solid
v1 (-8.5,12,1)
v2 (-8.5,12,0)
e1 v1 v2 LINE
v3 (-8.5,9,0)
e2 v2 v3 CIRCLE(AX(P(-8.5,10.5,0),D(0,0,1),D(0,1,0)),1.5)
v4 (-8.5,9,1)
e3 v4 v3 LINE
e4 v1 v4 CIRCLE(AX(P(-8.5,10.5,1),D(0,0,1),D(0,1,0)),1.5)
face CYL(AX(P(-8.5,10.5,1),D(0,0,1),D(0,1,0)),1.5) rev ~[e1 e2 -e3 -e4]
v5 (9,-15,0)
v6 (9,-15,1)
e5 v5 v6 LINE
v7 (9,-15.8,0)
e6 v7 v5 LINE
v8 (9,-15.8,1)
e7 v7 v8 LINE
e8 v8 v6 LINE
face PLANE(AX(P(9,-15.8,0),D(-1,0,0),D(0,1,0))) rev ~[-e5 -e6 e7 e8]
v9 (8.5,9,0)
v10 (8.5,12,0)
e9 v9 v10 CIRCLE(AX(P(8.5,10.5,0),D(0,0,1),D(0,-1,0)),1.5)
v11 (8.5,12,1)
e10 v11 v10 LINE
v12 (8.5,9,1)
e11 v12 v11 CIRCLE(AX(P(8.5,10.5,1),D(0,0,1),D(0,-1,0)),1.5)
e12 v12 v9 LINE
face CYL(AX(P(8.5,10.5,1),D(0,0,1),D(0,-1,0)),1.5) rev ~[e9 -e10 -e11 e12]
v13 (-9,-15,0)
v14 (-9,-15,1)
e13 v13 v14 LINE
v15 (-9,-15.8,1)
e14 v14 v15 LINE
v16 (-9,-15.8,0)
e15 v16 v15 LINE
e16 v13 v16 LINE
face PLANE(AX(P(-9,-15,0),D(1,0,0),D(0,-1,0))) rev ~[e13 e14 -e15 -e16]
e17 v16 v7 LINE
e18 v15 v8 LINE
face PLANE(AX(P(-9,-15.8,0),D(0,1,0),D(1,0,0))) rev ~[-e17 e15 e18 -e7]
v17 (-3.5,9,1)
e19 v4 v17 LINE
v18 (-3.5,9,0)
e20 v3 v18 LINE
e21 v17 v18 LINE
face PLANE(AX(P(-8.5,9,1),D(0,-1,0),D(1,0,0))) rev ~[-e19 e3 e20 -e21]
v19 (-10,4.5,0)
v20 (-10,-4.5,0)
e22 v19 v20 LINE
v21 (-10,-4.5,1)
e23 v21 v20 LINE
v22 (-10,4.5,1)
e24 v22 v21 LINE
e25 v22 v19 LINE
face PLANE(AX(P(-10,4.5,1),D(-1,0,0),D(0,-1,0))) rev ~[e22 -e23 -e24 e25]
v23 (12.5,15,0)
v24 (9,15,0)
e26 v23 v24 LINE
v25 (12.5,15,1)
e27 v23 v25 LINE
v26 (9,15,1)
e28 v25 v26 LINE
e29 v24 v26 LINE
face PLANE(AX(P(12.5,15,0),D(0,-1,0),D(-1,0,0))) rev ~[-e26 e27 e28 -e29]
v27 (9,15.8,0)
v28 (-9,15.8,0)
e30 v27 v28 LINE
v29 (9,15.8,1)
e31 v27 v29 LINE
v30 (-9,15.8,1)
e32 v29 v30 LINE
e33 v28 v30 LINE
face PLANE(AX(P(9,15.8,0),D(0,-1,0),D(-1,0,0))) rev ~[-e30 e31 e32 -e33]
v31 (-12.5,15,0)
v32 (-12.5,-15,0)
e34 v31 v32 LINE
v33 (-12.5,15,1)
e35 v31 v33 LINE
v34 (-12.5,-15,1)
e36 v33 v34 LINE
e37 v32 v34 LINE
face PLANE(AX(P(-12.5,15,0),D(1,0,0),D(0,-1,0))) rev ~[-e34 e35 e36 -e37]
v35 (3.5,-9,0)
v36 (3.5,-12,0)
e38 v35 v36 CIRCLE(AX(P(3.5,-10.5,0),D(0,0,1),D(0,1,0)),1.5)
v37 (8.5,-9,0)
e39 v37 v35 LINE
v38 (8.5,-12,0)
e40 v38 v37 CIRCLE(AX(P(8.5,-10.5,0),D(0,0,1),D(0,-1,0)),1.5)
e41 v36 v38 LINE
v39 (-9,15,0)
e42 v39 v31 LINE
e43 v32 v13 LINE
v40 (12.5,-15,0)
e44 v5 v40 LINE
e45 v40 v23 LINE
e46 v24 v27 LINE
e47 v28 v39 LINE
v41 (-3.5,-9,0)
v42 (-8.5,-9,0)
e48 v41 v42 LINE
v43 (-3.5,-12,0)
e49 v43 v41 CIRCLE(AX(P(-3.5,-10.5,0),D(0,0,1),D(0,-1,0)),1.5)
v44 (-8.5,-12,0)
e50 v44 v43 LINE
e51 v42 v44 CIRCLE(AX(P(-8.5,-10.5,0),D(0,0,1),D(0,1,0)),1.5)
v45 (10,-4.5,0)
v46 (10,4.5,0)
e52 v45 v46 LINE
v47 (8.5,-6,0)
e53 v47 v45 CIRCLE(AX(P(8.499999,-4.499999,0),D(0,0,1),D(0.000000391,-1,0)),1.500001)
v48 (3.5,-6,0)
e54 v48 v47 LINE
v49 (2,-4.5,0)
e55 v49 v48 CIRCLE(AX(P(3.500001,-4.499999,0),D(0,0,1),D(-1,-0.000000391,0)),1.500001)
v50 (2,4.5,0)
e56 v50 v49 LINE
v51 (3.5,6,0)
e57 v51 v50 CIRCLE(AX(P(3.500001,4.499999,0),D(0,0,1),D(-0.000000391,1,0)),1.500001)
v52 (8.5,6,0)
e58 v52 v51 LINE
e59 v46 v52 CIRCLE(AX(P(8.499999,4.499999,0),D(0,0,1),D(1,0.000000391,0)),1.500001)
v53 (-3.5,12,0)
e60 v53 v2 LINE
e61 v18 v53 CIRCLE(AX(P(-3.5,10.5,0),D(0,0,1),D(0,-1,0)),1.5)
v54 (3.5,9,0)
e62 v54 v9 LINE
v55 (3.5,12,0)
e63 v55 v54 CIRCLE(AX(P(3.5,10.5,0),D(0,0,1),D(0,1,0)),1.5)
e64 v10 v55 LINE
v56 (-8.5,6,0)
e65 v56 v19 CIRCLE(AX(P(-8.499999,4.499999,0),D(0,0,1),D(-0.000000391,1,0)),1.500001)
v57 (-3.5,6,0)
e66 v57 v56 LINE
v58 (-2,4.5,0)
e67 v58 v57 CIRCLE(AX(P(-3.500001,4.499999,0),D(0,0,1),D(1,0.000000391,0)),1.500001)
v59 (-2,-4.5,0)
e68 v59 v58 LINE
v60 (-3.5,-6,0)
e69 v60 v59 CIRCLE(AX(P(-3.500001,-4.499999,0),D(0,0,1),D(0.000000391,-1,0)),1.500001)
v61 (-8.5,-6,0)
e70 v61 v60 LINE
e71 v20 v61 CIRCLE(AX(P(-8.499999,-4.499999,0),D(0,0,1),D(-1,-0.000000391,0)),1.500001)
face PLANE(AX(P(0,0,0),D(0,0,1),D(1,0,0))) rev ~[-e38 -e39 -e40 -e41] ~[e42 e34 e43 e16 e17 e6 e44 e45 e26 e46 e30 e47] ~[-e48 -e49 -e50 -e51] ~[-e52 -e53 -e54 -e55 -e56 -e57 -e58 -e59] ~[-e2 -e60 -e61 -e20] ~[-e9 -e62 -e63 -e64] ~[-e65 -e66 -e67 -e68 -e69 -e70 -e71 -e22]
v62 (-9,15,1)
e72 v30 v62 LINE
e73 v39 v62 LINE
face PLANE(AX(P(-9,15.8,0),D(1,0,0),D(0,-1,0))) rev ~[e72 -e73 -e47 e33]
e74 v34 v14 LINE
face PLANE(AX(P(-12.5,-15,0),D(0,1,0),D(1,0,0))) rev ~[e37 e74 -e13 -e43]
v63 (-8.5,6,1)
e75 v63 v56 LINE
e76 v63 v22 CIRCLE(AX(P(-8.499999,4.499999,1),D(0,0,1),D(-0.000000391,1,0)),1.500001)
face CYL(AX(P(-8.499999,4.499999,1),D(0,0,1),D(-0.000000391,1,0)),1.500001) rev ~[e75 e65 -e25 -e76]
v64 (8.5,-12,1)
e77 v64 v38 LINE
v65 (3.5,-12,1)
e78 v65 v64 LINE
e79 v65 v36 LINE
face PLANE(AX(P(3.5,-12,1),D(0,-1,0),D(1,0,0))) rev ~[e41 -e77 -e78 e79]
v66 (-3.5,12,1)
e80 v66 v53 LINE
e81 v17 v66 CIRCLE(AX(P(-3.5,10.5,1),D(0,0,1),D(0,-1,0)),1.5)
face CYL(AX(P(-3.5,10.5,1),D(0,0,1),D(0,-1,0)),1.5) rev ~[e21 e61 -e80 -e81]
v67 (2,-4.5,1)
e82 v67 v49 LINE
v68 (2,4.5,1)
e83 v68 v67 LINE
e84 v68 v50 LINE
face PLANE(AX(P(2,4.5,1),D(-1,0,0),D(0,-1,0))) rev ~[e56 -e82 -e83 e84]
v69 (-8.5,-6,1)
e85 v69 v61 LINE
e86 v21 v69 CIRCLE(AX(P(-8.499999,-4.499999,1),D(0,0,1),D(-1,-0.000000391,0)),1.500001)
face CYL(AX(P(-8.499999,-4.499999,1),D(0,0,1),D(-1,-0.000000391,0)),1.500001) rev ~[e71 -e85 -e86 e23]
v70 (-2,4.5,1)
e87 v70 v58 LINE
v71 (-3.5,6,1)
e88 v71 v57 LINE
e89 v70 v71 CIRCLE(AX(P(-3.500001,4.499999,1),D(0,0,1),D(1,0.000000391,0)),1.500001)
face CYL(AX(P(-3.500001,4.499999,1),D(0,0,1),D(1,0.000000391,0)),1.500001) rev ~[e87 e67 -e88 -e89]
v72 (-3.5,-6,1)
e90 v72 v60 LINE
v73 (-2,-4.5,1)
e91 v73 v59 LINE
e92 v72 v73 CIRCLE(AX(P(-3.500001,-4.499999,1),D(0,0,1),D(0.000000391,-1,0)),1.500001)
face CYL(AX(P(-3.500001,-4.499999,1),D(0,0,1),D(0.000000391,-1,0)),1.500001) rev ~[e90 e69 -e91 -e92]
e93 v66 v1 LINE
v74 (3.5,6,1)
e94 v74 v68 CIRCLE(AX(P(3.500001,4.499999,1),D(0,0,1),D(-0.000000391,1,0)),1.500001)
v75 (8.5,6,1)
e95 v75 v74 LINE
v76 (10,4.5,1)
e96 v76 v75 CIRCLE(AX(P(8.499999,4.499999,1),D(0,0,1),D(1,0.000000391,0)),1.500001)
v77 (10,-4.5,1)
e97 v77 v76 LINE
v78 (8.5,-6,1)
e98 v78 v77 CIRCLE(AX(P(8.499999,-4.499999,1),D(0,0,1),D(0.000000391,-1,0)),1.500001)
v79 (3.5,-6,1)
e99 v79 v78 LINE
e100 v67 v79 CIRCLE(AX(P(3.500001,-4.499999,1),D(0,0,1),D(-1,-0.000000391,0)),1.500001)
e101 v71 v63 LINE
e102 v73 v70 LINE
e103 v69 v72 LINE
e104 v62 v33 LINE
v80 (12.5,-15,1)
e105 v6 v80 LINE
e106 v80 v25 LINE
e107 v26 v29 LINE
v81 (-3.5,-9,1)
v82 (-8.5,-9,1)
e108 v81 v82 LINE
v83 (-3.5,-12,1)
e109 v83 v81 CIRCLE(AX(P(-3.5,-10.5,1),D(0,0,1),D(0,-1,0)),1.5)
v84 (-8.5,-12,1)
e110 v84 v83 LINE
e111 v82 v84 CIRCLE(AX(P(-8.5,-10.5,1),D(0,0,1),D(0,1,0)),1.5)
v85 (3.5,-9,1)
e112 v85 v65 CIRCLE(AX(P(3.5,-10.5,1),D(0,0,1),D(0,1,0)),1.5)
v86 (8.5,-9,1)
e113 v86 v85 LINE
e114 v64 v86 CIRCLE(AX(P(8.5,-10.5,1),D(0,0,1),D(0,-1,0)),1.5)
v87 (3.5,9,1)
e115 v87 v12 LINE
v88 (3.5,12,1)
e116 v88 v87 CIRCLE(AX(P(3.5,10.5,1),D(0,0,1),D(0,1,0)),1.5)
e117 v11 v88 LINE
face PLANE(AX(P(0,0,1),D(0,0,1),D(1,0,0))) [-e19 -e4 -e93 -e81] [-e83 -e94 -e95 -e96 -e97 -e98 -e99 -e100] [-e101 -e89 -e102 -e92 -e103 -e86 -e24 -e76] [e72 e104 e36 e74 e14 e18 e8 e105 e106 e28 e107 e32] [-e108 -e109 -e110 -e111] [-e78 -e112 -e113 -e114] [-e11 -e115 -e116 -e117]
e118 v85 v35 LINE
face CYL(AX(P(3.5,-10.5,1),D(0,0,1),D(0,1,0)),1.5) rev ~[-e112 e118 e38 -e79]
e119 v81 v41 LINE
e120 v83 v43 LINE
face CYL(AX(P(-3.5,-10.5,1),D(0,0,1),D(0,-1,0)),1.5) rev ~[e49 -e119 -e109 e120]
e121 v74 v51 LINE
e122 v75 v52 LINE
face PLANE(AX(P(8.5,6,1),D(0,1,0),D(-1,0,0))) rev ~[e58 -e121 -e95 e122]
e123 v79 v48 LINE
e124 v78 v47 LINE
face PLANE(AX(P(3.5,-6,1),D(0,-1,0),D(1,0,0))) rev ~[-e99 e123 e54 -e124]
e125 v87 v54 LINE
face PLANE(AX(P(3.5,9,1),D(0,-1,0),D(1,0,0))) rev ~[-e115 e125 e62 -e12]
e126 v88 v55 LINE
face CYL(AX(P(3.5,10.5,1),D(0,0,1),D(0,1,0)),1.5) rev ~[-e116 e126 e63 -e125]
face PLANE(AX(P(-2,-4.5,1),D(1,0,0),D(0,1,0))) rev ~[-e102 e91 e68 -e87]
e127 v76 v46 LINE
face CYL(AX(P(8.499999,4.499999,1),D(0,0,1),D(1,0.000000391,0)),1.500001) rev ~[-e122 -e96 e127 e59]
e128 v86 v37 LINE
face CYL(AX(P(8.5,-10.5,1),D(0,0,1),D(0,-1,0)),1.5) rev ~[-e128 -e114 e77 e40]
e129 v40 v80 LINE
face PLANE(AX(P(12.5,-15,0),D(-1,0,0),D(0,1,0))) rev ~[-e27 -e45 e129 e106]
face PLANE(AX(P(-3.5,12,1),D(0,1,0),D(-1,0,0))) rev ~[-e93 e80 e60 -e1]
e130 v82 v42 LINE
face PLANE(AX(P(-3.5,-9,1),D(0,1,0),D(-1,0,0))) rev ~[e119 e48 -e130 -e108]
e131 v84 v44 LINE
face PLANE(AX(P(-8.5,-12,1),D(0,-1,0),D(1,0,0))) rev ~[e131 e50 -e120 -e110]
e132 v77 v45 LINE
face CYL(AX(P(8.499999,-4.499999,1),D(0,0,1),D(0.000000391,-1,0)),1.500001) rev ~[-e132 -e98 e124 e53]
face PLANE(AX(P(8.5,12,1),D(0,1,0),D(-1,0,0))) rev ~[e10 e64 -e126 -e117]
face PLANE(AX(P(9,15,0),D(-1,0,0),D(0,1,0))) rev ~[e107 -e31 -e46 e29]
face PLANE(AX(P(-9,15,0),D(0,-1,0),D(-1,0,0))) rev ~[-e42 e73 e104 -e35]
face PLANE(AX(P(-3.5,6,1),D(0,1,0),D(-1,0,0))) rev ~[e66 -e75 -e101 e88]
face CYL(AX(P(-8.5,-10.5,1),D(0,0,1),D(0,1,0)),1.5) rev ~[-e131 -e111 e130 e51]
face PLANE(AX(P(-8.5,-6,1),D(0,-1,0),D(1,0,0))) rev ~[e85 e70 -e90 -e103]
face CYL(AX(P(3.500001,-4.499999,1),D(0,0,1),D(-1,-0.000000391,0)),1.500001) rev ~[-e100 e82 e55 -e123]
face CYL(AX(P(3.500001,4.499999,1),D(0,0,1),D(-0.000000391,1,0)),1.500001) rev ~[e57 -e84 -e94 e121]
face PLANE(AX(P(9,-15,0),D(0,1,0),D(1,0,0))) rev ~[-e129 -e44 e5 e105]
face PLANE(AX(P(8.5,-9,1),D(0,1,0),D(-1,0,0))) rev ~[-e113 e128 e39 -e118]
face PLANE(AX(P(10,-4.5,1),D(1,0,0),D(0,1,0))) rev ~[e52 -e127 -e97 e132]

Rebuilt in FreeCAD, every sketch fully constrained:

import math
import FreeCAD as App
import Part
import Sketcher


def add_polygon(sketch, points):
    """Adds a closed chain of lines whose ends are joined by coincident constraints."""
    first, n = sketch.GeometryCount, len(points)
    for a, b in zip(points, points[1:] + points[:1]):
        sketch.addGeometry(Part.LineSegment(App.Vector(*a, 0), App.Vector(*b, 0)), False)
    for i in range(n):
        sketch.addConstraint(Sketcher.Constraint("Coincident", first + i, 2, first + (i + 1) % n, 1))

doc = App.newDocument("Part")
body = doc.addObject("PartDesign::Body", "Body")

sketch1 = body.newObject("Sketcher::SketchObject", "Sketch")
sketch1.AttachmentSupport = (doc.getObject("XY_Plane"), [""])
sketch1.MapMode = "FlatFace"
add_polygon(sketch1, [(-9, 15), (-12.5, 15), (-12.5, -15), (-9, -15), (-9, -15.8), (9, -15.8), (9, -15), (12.5, -15), (12.5, 15), (9, 15), (9, 15.8), (-9, 15.8)])
sketch1.addConstraint(Sketcher.Constraint("Horizontal", 0))
sketch1.addConstraint(Sketcher.Constraint("Vertical", 1))
sketch1.addConstraint(Sketcher.Constraint("Horizontal", 2))
sketch1.addConstraint(Sketcher.Constraint("Vertical", 3))
sketch1.addConstraint(Sketcher.Constraint("Horizontal", 4))
sketch1.addConstraint(Sketcher.Constraint("Vertical", 5))
sketch1.addConstraint(Sketcher.Constraint("Horizontal", 6))
sketch1.addConstraint(Sketcher.Constraint("Vertical", 7))
sketch1.addConstraint(Sketcher.Constraint("Horizontal", 8))
sketch1.addConstraint(Sketcher.Constraint("Vertical", 9))
sketch1.addConstraint(Sketcher.Constraint("Horizontal", 10))
sketch1.addConstraint(Sketcher.Constraint("Vertical", 11))
sketch1.addConstraint(Sketcher.Constraint("Symmetric", 0, 2, 6, 2, -1, 1))
sketch1.addConstraint(Sketcher.Constraint("Symmetric", 2, 2, 8, 2, -1, 1))
sketch1.addConstraint(Sketcher.Constraint("Symmetric", 4, 2, 10, 2, -1, 1))
sketch1.addConstraint(Sketcher.Constraint("Symmetric", 2, 2, 5, 2, -2))
sketch1.addConstraint(Sketcher.Constraint("DistanceX", 4, 1, 4, 2, 18.0))
sketch1.addConstraint(Sketcher.Constraint("DistanceY", 1, 2, 1, 1, 30.0))
sketch1.addConstraint(Sketcher.Constraint("DistanceX", 0, 2, 0, 1, 3.5))
sketch1.addConstraint(Sketcher.Constraint("DistanceY", 3, 2, 3, 1, 0.8))
pad1 = body.newObject("PartDesign::Pad", "Pad")
pad1.Profile = sketch1
pad1.Length = 1

sketch2 = body.newObject("Sketcher::SketchObject", "Sketch001")
sketch2.AttachmentSupport = (doc.getObject("XY_Plane"), [""])
sketch2.MapMode = "FlatFace"
sketch2.AttachmentOffset = App.Placement(App.Vector(0, 0, 1), App.Rotation())
sketch2.addGeometry(Part.ArcOfCircle(Part.Circle(App.Vector(-8.5, 10.5, 0), App.Vector(0, 0, 1), 1.5), math.radians(90), math.radians(270)), False)
sketch2.addGeometry(Part.LineSegment(App.Vector(-8.5, 9, 0), App.Vector(-3.5, 9, 0)), False)
sketch2.addGeometry(Part.ArcOfCircle(Part.Circle(App.Vector(-3.5, 10.5, 0), App.Vector(0, 0, 1), 1.5), math.radians(-90), math.radians(90)), False)
sketch2.addGeometry(Part.LineSegment(App.Vector(-3.5, 12, 0), App.Vector(-8.5, 12, 0)), False)
sketch2.addGeometry(Part.LineSegment(App.Vector(8.5, 12, 0), App.Vector(3.5, 12, 0)), False)
sketch2.addGeometry(Part.ArcOfCircle(Part.Circle(App.Vector(3.5, 10.5, 0), App.Vector(0, 0, 1), 1.5), math.radians(90), math.radians(270)), False)
sketch2.addGeometry(Part.LineSegment(App.Vector(3.5, 9, 0), App.Vector(8.5, 9, 0)), False)
sketch2.addGeometry(Part.ArcOfCircle(Part.Circle(App.Vector(8.5, 10.5, 0), App.Vector(0, 0, 1), 1.5), math.radians(-90), math.radians(90)), False)
sketch2.addGeometry(Part.LineSegment(App.Vector(3.5, -6, 0), App.Vector(8.5, -6, 0)), False)
sketch2.addGeometry(Part.ArcOfCircle(Part.Circle(App.Vector(8.5, -4.5, 0), App.Vector(0, 0, 1), 1.5), math.radians(-90), math.radians(0)), False)
sketch2.addGeometry(Part.LineSegment(App.Vector(10, -4.5, 0), App.Vector(10, 4.5, 0)), False)
sketch2.addGeometry(Part.ArcOfCircle(Part.Circle(App.Vector(8.5, 4.5, 0), App.Vector(0, 0, 1), 1.5), math.radians(0), math.radians(90)), False)
sketch2.addGeometry(Part.LineSegment(App.Vector(8.5, 6, 0), App.Vector(3.5, 6, 0)), False)
sketch2.addGeometry(Part.ArcOfCircle(Part.Circle(App.Vector(3.5, 4.5, 0), App.Vector(0, 0, 1), 1.5), math.radians(90), math.radians(180)), False)
sketch2.addGeometry(Part.LineSegment(App.Vector(2, 4.5, 0), App.Vector(2, -4.5, 0)), False)
sketch2.addGeometry(Part.ArcOfCircle(Part.Circle(App.Vector(3.5, -4.5, 0), App.Vector(0, 0, 1), 1.5), math.radians(-180), math.radians(-90)), False)
sketch2.addGeometry(Part.LineSegment(App.Vector(-3.5, 6, 0), App.Vector(-8.5, 6, 0)), False)
sketch2.addGeometry(Part.ArcOfCircle(Part.Circle(App.Vector(-8.5, 4.5, 0), App.Vector(0, 0, 1), 1.5), math.radians(90), math.radians(180)), False)
sketch2.addGeometry(Part.LineSegment(App.Vector(-10, 4.5, 0), App.Vector(-10, -4.5, 0)), False)
sketch2.addGeometry(Part.ArcOfCircle(Part.Circle(App.Vector(-8.5, -4.5, 0), App.Vector(0, 0, 1), 1.5), math.radians(-180), math.radians(-90)), False)
sketch2.addGeometry(Part.LineSegment(App.Vector(-8.5, -6, 0), App.Vector(-3.5, -6, 0)), False)
sketch2.addGeometry(Part.ArcOfCircle(Part.Circle(App.Vector(-3.5, -4.5, 0), App.Vector(0, 0, 1), 1.5), math.radians(-90), math.radians(0)), False)
sketch2.addGeometry(Part.LineSegment(App.Vector(-2, -4.5, 0), App.Vector(-2, 4.5, 0)), False)
sketch2.addGeometry(Part.ArcOfCircle(Part.Circle(App.Vector(-3.5, 4.5, 0), App.Vector(0, 0, 1), 1.5), math.radians(0), math.radians(90)), False)
sketch2.addGeometry(Part.LineSegment(App.Vector(-3.5, -9, 0), App.Vector(-8.5, -9, 0)), False)
sketch2.addGeometry(Part.ArcOfCircle(Part.Circle(App.Vector(-8.5, -10.5, 0), App.Vector(0, 0, 1), 1.5), math.radians(90), math.radians(270)), False)
sketch2.addGeometry(Part.LineSegment(App.Vector(-8.5, -12, 0), App.Vector(-3.5, -12, 0)), False)
sketch2.addGeometry(Part.ArcOfCircle(Part.Circle(App.Vector(-3.5, -10.5, 0), App.Vector(0, 0, 1), 1.5), math.radians(-90), math.radians(90)), False)
sketch2.addGeometry(Part.ArcOfCircle(Part.Circle(App.Vector(8.5, -10.5, 0), App.Vector(0, 0, 1), 1.5), math.radians(-90), math.radians(90)), False)
sketch2.addGeometry(Part.LineSegment(App.Vector(8.5, -9, 0), App.Vector(3.5, -9, 0)), False)
sketch2.addGeometry(Part.ArcOfCircle(Part.Circle(App.Vector(3.5, -10.5, 0), App.Vector(0, 0, 1), 1.5), math.radians(90), math.radians(270)), False)
sketch2.addGeometry(Part.LineSegment(App.Vector(3.5, -12, 0), App.Vector(8.5, -12, 0)), False)
sketch2.addConstraint(Sketcher.Constraint("Tangent", 0, 2, 1, 1))
sketch2.addConstraint(Sketcher.Constraint("Tangent", 1, 2, 2, 1))
sketch2.addConstraint(Sketcher.Constraint("Tangent", 2, 2, 3, 1))
sketch2.addConstraint(Sketcher.Constraint("Tangent", 3, 2, 0, 1))
sketch2.addConstraint(Sketcher.Constraint("Tangent", 4, 2, 5, 1))
sketch2.addConstraint(Sketcher.Constraint("Tangent", 5, 2, 6, 1))
sketch2.addConstraint(Sketcher.Constraint("Tangent", 6, 2, 7, 1))
sketch2.addConstraint(Sketcher.Constraint("Tangent", 7, 2, 4, 1))
sketch2.addConstraint(Sketcher.Constraint("Tangent", 8, 2, 9, 1))
sketch2.addConstraint(Sketcher.Constraint("Tangent", 9, 2, 10, 1))
sketch2.addConstraint(Sketcher.Constraint("Tangent", 10, 2, 11, 1))
sketch2.addConstraint(Sketcher.Constraint("Tangent", 11, 2, 12, 1))
sketch2.addConstraint(Sketcher.Constraint("Tangent", 12, 2, 13, 1))
sketch2.addConstraint(Sketcher.Constraint("Tangent", 13, 2, 14, 1))
sketch2.addConstraint(Sketcher.Constraint("Tangent", 14, 2, 15, 1))
sketch2.addConstraint(Sketcher.Constraint("Tangent", 15, 2, 8, 1))
sketch2.addConstraint(Sketcher.Constraint("Tangent", 16, 2, 17, 1))
sketch2.addConstraint(Sketcher.Constraint("Tangent", 17, 2, 18, 1))
sketch2.addConstraint(Sketcher.Constraint("Tangent", 18, 2, 19, 1))
sketch2.addConstraint(Sketcher.Constraint("Tangent", 19, 2, 20, 1))
sketch2.addConstraint(Sketcher.Constraint("Tangent", 20, 2, 21, 1))
sketch2.addConstraint(Sketcher.Constraint("Tangent", 21, 2, 22, 1))
sketch2.addConstraint(Sketcher.Constraint("Tangent", 22, 2, 23, 1))
sketch2.addConstraint(Sketcher.Constraint("Tangent", 23, 2, 16, 1))
sketch2.addConstraint(Sketcher.Constraint("Tangent", 24, 2, 25, 1))
sketch2.addConstraint(Sketcher.Constraint("Tangent", 25, 2, 26, 1))
sketch2.addConstraint(Sketcher.Constraint("Tangent", 26, 2, 27, 1))
sketch2.addConstraint(Sketcher.Constraint("Tangent", 27, 2, 24, 1))
sketch2.addConstraint(Sketcher.Constraint("Tangent", 28, 2, 29, 1))
sketch2.addConstraint(Sketcher.Constraint("Tangent", 29, 2, 30, 1))
sketch2.addConstraint(Sketcher.Constraint("Tangent", 30, 2, 31, 1))
sketch2.addConstraint(Sketcher.Constraint("Tangent", 31, 2, 28, 1))
sketch2.addConstraint(Sketcher.Constraint("Horizontal", 1))
sketch2.addConstraint(Sketcher.Constraint("Horizontal", 3))
sketch2.addConstraint(Sketcher.Constraint("Horizontal", 4))
sketch2.addConstraint(Sketcher.Constraint("Horizontal", 6))
sketch2.addConstraint(Sketcher.Constraint("Horizontal", 8))
sketch2.addConstraint(Sketcher.Constraint("Vertical", 10))
sketch2.addConstraint(Sketcher.Constraint("Horizontal", 12))
sketch2.addConstraint(Sketcher.Constraint("Vertical", 14))
sketch2.addConstraint(Sketcher.Constraint("Horizontal", 16))
sketch2.addConstraint(Sketcher.Constraint("Vertical", 18))
sketch2.addConstraint(Sketcher.Constraint("Horizontal", 20))
sketch2.addConstraint(Sketcher.Constraint("Vertical", 22))
sketch2.addConstraint(Sketcher.Constraint("Horizontal", 24))
sketch2.addConstraint(Sketcher.Constraint("Horizontal", 26))
sketch2.addConstraint(Sketcher.Constraint("Horizontal", 29))
sketch2.addConstraint(Sketcher.Constraint("Horizontal", 31))
sketch2.addConstraint(Sketcher.Constraint("Equal", 2, 5))
sketch2.addConstraint(Sketcher.Constraint("Equal", 7, 9))
sketch2.addConstraint(Sketcher.Constraint("Equal", 9, 11))
sketch2.addConstraint(Sketcher.Constraint("Equal", 11, 13))
sketch2.addConstraint(Sketcher.Constraint("Equal", 13, 15))
sketch2.addConstraint(Sketcher.Constraint("Equal", 15, 17))
sketch2.addConstraint(Sketcher.Constraint("Equal", 17, 19))
sketch2.addConstraint(Sketcher.Constraint("Equal", 19, 21))
sketch2.addConstraint(Sketcher.Constraint("Equal", 21, 23))
sketch2.addConstraint(Sketcher.Constraint("Equal", 23, 25))
sketch2.addConstraint(Sketcher.Constraint("Equal", 27, 28))
sketch2.addConstraint(Sketcher.Constraint("Symmetric", 9, 3, 17, 3, -1, 1))
sketch2.addConstraint(Sketcher.Constraint("Symmetric", 13, 3, 21, 3, -1, 1))
sketch2.addConstraint(Sketcher.Constraint("Symmetric", 7, 3, 25, 3, -1, 1))
sketch2.addConstraint(Sketcher.Constraint("Symmetric", 0, 3, 28, 3, -1, 1))
sketch2.addConstraint(Sketcher.Constraint("Symmetric", 2, 3, 5, 3, -2))
sketch2.addConstraint(Sketcher.Constraint("Horizontal", 13, 3, 17, 3))
sketch2.addConstraint(Sketcher.Constraint("Vertical", 7, 3, 9, 3))
sketch2.addConstraint(Sketcher.Constraint("Vertical", 5, 3, 13, 3))
sketch2.addConstraint(Sketcher.Constraint("Vertical", 0, 3, 17, 3))
sketch2.addConstraint(Sketcher.Constraint("Vertical", 23, 3, 27, 3))
sketch2.addConstraint(Sketcher.Constraint("Vertical", 15, 3, 30, 3))
sketch2.addConstraint(Sketcher.Constraint("Radius", 0, 1.5))
sketch2.addConstraint(Sketcher.Constraint("DistanceX", 1, 1, 1, 2, 5.0))
sketch2.addConstraint(Sketcher.Constraint("DistanceY", 10, 1, 10, 2, 9.0))
sketch2.addConstraint(Sketcher.Constraint("DistanceY", -1, 1, 0, 2, 9.0))
sketch2.addConstraint(Sketcher.Constraint("DistanceX", -1, 1, 9, 2, 10.0))
pocket1 = body.newObject("PartDesign::Pocket", "Pocket")
pocket1.Profile = sketch2
pocket1.Length = 25

doc.recompute()
